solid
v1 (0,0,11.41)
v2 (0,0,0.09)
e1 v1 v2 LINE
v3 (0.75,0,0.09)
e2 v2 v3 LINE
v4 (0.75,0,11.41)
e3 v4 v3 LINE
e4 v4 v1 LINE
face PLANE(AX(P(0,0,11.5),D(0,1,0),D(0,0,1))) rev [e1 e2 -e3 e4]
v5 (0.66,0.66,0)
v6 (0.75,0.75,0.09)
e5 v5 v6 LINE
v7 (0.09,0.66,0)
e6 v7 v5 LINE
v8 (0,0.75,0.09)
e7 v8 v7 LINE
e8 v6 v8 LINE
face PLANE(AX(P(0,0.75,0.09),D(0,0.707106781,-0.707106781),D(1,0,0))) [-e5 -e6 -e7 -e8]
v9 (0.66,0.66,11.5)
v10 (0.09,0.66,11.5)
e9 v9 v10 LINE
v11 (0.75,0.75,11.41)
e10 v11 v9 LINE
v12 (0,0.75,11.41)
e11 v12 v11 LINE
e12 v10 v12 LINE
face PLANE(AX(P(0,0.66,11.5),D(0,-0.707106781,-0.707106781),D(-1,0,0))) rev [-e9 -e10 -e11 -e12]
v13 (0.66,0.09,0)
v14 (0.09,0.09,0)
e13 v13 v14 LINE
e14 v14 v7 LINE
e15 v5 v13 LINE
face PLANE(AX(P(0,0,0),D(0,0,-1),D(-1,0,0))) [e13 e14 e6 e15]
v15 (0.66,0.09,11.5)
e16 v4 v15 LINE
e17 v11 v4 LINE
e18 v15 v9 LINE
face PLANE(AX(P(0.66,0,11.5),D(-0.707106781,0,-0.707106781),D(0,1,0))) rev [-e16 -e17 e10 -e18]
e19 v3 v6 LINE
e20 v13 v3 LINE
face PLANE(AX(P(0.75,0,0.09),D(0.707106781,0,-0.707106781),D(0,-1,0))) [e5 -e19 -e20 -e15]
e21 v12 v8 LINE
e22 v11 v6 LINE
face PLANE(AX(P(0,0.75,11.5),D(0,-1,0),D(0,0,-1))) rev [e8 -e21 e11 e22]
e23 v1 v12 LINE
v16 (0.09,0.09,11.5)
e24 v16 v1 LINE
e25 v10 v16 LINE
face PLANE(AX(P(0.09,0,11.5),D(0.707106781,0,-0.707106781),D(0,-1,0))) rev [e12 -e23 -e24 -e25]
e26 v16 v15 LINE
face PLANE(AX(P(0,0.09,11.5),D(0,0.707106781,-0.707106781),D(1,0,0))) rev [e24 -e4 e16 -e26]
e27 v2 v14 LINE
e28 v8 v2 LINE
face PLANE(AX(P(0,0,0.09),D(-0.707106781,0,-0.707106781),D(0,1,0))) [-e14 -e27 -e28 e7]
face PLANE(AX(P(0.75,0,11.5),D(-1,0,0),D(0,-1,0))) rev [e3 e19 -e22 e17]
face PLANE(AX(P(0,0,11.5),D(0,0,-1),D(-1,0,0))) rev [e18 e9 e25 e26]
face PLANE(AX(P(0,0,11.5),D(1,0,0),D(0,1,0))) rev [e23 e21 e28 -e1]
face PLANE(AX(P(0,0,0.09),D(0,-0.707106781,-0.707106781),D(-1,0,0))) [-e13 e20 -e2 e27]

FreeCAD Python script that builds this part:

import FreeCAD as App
import Part
import Sketcher
from FreeCAD import Vector


def edges_at(feature, points):
    """Names of the edges that pass closest to the given points."""
    edges = feature.Shape.Edges
    near = lambda p: min(range(len(edges)), key=lambda i: edges[i].distToShape(Part.Vertex(*p))[0])
    return sorted({f"Edge{near(p) + 1}" for p in points})

doc = App.newDocument("Part")
params = doc.addObject("Spreadsheet::Sheet", "Params")
for row, (alias, value) in enumerate([
    ("sketch1_width", "0.75 mm"),
    ("pad1_length", "11.5 mm"),
    ("chamfer_size", "0.09 mm"),
], start=1):
    params.set(f"A{row}", alias)
    params.set(f"B{row}", "=" + value)
    params.setAlias(f"B{row}", alias)

body = doc.addObject("PartDesign::Body", "Body")

# Sketch on XY plane
sketch1 = doc.addObject("Sketcher::SketchObject", "Sketch")
body.addObject(sketch1)
sketch1.AttachmentSupport = (doc.XY_Plane, [""])
sketch1.MapMode = "FlatFace"
sketch1.addGeometry(Part.LineSegment(Vector(0, 0.8, 0), Vector(0, 0, 0)), False)
sketch1.addGeometry(Part.LineSegment(Vector(0, 0, 0), Vector(0.8, 0, 0)), False)
sketch1.addGeometry(Part.LineSegment(Vector(0.8, 0, 0), Vector(0.8, 0.8, 0)), False)
sketch1.addGeometry(Part.LineSegment(Vector(0.8, 0.8, 0), Vector(0, 0.8, 0)), False)
sketch1.addConstraint(Sketcher.Constraint("Coincident", 0, 2, 1, 1))
sketch1.addConstraint(Sketcher.Constraint("Coincident", 1, 2, 2, 1))
sketch1.addConstraint(Sketcher.Constraint("Coincident", 2, 2, 3, 1))
sketch1.addConstraint(Sketcher.Constraint("Coincident", 3, 2, 0, 1))
sketch1.addConstraint(Sketcher.Constraint("Vertical", 0))
sketch1.addConstraint(Sketcher.Constraint("Horizontal", 1))
sketch1.addConstraint(Sketcher.Constraint("Vertical", 2))
sketch1.addConstraint(Sketcher.Constraint("Horizontal", 3))
sketch1.addConstraint(Sketcher.Constraint("Coincident", 0, 2, -1, 1))
sketch1.addConstraint(Sketcher.Constraint("Equal", 3, 0))
sketch1.addConstraint(Sketcher.Constraint("DistanceX", 1, 1, 1, 2, 0.75))
sketch1.setExpression("Constraints[10]", "Params.sketch1_width")
pad1 = doc.addObject("PartDesign::Pad", "Pad")
body.addObject(pad1)
pad1.Profile = sketch1
pad1.setExpression("Length", "Params.pad1_length")
doc.recompute()

chamfer = doc.addObject("PartDesign::Chamfer", "Chamfer")
body.addObject(chamfer)
chamfer.Base = (pad1, edges_at(pad1, [
    (0.75, 0.375, 11.5),
    (0.375, 0.75, 11.5),
    (0, 0.375, 11.5),
    (0.375, 0.75, 0),
    (0.75, 0.375, 0),
    (0.375, 0, 0),
    (0, 0.375, 0),
    (0.375, 0, 11.5),
]))
chamfer.setExpression("Size", "Params.chamfer_size")

doc.recompute()
